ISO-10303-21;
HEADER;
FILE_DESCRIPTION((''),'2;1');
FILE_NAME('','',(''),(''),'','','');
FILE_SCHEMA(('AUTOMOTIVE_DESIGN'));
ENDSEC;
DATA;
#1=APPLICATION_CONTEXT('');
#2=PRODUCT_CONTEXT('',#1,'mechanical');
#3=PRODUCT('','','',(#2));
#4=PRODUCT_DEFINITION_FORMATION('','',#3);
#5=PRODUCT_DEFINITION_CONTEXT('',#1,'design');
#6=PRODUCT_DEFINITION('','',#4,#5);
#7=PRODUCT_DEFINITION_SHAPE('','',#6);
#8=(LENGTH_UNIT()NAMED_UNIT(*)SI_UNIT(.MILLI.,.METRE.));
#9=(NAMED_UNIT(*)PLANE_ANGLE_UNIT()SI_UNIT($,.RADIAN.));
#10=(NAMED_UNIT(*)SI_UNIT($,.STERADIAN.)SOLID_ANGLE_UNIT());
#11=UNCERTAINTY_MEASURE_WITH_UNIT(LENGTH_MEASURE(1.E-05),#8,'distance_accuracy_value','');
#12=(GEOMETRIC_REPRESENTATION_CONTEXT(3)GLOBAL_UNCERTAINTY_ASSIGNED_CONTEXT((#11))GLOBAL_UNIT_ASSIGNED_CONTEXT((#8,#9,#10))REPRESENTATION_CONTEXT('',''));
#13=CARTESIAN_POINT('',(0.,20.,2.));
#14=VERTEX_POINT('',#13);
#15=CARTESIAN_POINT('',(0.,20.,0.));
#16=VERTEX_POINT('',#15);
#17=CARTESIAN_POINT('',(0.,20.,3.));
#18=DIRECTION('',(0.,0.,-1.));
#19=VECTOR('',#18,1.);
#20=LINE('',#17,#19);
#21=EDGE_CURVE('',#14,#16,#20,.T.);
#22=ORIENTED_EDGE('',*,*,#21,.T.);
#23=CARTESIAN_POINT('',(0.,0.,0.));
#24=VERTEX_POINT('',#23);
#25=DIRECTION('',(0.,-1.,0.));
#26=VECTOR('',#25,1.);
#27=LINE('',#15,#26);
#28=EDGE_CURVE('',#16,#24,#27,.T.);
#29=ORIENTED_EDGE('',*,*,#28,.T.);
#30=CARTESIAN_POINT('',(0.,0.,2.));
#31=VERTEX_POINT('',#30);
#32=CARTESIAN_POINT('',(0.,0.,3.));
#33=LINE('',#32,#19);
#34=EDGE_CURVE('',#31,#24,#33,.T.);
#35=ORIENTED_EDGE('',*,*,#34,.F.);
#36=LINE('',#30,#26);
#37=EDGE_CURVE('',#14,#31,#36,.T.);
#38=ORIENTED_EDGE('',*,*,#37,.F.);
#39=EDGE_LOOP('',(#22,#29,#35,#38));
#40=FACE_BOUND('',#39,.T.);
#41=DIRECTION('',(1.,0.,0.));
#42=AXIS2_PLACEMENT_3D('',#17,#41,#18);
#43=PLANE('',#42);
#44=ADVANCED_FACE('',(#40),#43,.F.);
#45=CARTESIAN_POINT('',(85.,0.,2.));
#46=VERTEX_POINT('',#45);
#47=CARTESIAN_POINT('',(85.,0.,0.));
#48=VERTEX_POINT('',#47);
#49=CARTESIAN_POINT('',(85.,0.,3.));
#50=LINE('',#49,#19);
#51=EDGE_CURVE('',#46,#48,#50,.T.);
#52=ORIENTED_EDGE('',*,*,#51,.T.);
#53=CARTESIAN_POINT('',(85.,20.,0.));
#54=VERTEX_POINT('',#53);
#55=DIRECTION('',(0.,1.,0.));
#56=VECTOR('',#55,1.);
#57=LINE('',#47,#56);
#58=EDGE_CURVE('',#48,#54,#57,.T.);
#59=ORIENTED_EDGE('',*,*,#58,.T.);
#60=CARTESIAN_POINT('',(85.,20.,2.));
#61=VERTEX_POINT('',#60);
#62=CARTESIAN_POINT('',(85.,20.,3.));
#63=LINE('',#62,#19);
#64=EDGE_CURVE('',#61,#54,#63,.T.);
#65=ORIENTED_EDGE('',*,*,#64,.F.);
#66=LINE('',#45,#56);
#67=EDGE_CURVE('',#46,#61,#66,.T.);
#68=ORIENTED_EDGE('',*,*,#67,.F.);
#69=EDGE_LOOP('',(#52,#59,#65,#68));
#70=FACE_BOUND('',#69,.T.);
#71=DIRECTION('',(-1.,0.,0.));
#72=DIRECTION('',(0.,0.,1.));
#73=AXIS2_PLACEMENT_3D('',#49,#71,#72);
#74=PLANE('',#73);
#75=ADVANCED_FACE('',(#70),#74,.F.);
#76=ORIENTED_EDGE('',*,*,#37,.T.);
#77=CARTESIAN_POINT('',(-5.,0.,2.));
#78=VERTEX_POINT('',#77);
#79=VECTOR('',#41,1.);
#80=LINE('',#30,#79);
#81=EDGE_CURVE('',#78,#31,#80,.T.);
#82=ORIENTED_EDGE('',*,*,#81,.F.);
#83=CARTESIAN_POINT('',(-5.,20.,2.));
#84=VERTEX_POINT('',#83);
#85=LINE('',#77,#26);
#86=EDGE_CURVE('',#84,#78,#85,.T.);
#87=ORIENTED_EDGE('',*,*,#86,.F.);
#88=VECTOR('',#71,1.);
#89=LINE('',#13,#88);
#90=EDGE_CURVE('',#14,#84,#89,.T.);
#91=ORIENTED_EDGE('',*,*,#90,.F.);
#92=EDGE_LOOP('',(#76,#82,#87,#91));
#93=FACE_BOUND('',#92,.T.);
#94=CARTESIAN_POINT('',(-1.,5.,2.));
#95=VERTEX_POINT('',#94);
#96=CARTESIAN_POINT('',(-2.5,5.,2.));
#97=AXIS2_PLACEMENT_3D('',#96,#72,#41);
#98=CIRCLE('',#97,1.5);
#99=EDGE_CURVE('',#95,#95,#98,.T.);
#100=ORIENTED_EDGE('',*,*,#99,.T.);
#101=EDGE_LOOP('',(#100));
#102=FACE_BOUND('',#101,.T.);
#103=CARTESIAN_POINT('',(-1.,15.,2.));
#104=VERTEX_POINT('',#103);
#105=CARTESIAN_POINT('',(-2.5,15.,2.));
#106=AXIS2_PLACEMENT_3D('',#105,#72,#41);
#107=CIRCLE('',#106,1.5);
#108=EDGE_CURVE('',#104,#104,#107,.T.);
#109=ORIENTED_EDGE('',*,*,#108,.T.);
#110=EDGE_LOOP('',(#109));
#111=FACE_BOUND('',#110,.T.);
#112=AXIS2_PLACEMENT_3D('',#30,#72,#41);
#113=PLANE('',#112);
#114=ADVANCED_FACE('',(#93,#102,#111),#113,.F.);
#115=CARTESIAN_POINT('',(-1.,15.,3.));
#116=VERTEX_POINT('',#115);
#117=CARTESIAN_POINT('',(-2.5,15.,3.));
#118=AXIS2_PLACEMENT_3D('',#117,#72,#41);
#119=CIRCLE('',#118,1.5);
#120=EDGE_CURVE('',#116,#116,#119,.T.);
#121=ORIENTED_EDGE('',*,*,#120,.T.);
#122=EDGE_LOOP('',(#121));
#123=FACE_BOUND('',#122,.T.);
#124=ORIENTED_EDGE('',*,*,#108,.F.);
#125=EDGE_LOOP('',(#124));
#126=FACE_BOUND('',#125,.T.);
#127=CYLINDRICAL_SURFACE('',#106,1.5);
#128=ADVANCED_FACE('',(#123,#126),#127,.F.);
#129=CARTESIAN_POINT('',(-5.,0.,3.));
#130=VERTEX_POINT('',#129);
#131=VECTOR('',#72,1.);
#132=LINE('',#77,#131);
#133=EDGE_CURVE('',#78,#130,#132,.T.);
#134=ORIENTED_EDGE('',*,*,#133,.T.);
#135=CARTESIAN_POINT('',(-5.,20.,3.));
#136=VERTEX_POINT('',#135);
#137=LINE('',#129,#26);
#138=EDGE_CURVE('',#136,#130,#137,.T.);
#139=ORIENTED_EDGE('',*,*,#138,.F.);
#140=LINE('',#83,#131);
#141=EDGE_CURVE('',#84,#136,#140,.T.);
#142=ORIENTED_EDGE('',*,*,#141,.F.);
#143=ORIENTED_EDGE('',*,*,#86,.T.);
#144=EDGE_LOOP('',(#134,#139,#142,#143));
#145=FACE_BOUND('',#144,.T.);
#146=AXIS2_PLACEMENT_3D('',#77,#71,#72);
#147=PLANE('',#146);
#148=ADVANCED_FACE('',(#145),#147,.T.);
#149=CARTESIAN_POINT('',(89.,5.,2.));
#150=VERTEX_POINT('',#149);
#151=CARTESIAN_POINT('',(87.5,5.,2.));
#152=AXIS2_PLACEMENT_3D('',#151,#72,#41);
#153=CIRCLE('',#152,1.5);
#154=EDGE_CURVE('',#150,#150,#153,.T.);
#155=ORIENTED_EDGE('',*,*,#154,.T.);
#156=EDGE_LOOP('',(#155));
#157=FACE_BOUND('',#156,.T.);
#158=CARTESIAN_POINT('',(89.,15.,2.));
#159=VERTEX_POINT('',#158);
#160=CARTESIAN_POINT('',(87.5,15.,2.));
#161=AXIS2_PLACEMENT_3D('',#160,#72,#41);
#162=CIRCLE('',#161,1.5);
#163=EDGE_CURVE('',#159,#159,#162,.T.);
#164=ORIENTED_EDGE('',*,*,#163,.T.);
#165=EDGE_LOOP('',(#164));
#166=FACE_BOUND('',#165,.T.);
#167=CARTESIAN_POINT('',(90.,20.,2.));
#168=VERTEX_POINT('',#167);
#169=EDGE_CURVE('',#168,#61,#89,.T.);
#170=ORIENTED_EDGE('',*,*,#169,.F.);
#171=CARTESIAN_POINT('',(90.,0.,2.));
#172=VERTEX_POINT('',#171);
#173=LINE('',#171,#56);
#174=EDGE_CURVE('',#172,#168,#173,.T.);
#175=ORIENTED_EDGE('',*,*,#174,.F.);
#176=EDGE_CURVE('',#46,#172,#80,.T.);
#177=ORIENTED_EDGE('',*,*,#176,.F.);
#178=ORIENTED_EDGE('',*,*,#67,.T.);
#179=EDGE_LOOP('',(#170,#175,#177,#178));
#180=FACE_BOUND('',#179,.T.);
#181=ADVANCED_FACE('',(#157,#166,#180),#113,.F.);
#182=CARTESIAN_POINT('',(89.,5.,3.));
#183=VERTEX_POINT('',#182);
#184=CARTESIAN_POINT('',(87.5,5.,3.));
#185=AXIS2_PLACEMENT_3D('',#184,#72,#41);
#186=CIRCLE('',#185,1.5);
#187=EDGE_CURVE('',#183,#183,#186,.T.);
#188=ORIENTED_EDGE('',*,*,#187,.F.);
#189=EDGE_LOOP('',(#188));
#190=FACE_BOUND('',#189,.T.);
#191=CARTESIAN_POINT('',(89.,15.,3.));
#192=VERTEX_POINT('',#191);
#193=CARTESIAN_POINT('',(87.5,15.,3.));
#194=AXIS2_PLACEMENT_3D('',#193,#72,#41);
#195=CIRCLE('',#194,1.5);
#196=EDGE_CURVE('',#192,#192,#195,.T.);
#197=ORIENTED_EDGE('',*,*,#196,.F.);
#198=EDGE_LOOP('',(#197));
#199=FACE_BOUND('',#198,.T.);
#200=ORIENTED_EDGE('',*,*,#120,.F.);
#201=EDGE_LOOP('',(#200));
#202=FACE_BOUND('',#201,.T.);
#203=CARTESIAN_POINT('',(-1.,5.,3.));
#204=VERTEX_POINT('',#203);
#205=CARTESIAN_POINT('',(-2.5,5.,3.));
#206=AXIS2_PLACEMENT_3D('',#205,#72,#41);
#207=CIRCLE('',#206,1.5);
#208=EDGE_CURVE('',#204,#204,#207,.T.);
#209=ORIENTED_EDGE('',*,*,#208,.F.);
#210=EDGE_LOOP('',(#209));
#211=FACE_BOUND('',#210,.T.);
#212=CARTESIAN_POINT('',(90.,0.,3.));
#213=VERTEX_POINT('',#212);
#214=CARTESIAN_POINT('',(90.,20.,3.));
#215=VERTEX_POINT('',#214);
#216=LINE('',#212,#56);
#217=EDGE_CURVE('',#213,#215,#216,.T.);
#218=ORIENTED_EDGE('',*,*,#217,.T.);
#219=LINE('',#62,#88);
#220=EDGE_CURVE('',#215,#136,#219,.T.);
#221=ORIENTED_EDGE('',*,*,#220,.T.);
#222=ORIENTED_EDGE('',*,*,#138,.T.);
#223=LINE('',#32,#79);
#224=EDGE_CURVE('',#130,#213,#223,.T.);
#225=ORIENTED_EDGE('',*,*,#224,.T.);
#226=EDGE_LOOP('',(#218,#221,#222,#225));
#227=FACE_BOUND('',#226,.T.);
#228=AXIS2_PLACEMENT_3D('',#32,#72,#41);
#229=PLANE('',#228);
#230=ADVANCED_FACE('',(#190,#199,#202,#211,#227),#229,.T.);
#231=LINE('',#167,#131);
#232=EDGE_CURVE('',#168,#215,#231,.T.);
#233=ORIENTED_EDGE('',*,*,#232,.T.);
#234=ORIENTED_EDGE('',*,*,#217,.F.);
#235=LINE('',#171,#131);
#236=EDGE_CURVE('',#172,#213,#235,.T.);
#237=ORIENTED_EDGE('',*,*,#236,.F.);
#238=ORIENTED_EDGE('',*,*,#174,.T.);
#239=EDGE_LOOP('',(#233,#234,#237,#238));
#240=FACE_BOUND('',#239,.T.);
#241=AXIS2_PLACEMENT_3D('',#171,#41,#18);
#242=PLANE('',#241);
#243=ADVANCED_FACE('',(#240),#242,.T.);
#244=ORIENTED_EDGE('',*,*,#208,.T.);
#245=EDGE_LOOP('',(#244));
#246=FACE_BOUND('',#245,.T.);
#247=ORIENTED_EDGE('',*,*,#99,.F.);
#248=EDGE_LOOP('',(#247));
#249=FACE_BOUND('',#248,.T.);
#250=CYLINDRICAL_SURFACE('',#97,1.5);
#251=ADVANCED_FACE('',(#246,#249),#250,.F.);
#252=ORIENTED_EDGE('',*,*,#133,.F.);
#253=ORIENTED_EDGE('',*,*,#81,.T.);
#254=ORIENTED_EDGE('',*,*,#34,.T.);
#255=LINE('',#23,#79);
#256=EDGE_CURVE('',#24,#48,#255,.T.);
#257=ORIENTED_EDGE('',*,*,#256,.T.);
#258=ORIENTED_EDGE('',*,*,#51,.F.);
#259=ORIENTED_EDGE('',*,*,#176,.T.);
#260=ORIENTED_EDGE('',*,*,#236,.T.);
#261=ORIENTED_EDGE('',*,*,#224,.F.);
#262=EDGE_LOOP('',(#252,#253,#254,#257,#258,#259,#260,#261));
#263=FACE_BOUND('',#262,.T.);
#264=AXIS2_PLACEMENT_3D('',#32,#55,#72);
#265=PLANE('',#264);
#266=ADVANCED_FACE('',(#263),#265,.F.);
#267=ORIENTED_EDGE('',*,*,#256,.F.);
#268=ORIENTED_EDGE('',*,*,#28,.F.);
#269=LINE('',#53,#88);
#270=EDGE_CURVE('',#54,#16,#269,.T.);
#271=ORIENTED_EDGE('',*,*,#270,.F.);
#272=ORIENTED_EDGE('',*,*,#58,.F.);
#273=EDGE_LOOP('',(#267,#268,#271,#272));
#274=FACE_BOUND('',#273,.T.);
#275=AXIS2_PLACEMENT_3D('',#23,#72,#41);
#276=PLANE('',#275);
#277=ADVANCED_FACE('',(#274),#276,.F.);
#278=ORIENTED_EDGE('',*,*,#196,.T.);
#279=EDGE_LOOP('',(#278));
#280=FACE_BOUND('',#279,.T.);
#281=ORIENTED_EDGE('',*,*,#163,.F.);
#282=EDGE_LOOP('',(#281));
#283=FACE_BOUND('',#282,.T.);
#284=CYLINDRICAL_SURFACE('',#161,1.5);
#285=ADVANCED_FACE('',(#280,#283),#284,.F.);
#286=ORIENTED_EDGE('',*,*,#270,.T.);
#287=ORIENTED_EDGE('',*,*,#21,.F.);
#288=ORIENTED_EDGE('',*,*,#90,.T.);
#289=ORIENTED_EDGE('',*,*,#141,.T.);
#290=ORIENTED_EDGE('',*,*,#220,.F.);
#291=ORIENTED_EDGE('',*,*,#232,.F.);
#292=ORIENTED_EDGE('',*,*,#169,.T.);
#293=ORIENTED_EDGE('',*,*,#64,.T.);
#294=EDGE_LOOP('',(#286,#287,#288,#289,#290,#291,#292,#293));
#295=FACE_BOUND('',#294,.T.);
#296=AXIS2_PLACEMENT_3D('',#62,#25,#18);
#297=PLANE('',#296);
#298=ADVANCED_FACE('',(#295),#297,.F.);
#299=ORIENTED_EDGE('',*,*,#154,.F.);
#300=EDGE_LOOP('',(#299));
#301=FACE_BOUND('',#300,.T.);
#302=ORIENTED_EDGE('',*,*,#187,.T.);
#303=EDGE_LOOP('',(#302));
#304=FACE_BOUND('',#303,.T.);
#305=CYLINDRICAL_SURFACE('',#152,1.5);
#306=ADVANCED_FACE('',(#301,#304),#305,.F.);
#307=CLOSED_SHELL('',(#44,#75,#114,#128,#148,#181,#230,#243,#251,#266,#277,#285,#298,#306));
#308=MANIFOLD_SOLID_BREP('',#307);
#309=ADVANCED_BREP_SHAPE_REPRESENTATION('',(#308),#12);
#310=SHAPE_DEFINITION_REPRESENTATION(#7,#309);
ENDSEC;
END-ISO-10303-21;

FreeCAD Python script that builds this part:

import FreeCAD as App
import Part
import Sketcher

V = App.Vector


def add_polygon(sketch, points):
    """Adds a closed chain of lines whose ends are joined by coincident constraints."""
    first, n = sketch.GeometryCount, len(points)
    for a, b in zip(points, points[1:] + points[:1]):
        sketch.addGeometry(Part.LineSegment(App.Vector(*a, 0), App.Vector(*b, 0)), False)
    for i in range(n):
        sketch.addConstraint(Sketcher.Constraint("Coincident", first + i, 2, first + (i + 1) % n, 1))

doc = App.newDocument("Part")
body = doc.addObject("PartDesign::Body", "Body")

# Sketch on XY plane
sketch1 = body.newObject("Sketcher::SketchObject", "Sketch")
sketch1.AttachmentSupport = (doc.getObject("XY_Plane"), [""])
sketch1.MapMode = "FlatFace"
add_polygon(sketch1, [(0, 20), (0, 0), (85, 0), (85, 20)])  # lines 0-3
sketch1.addConstraint([
    Sketcher.Constraint("Vertical", 0),
    Sketcher.Constraint("Horizontal", 1),
    Sketcher.Constraint("Vertical", 2),
    Sketcher.Constraint("Horizontal", 3),
    Sketcher.Constraint("Coincident", 0, 2, -1, 1),
    Sketcher.Constraint("DistanceX", 1, 1, 1, 2, 85.0),
    Sketcher.Constraint("DistanceY", 0, 2, 0, 1, 20.0),
])
pad1 = body.newObject("PartDesign::Pad", "Pad")
pad1.Profile = sketch1
pad1.Length = 3

# Sketch on XY plane
sketch2 = body.newObject("Sketcher::SketchObject", "Sketch001")
sketch2.AttachmentSupport = (doc.getObject("XY_Plane"), [""])
sketch2.MapMode = "FlatFace"
sketch2.AttachmentOffset = App.Placement(V(0, 0, 3), App.Rotation())
add_polygon(sketch2, [(85, 20), (85, 0), (90, 0), (90, 20)])  # lines 0-3
sketch2.addGeometry(Part.Circle(V(87.5, 5, 0), V(0, 0, 1), 1.5), False)  # 4
sketch2.addGeometry(Part.Circle(V(87.5, 15, 0), V(0, 0, 1), 1.5), False)  # 5
add_polygon(sketch2, [(-5, 20), (-5, 0), (0, 0), (0, 20)])  # lines 6-9
sketch2.addGeometry(Part.Circle(V(-2.5, 5, 0), V(0, 0, 1), 1.5), False)  # 10
sketch2.addGeometry(Part.Circle(V(-2.5, 15, 0), V(0, 0, 1), 1.5), False)  # 11
sketch2.addConstraint([
    Sketcher.Constraint("Vertical", 0),
    Sketcher.Constraint("Horizontal", 1),
    Sketcher.Constraint("Vertical", 2),
    Sketcher.Constraint("Horizontal", 3),
    Sketcher.Constraint("Vertical", 6),
    Sketcher.Constraint("Horizontal", 7),
    Sketcher.Constraint("Vertical", 8),
    Sketcher.Constraint("Horizontal", 9),
    Sketcher.Constraint("Coincident", 7, 2, -1, 1),
    Sketcher.Constraint("Equal", 4, 5),
    Sketcher.Constraint("Equal", 5, 10),
    Sketcher.Constraint("Equal", 10, 11),
    Sketcher.Constraint("PointOnObject", 0, 2, -1),
    Sketcher.Constraint("Horizontal", 4, 3, 10, 3),
    Sketcher.Constraint("Horizontal", 5, 3, 11, 3),
    Sketcher.Constraint("Horizontal", 3, 2, 8, 2),
    Sketcher.Constraint("Vertical", 4, 3, 5, 3),
    Sketcher.Constraint("Vertical", 10, 3, 11, 3),
    Sketcher.Constraint("Equal", 3, 7),
    Sketcher.Constraint("Diameter", 4, 3.0),
    Sketcher.Constraint("DistanceX", 1, 1, 1, 2, 5.0),
    Sketcher.Constraint("DistanceY", 0, 2, 0, 1, 20.0),
    Sketcher.Constraint("DistanceY", -1, 1, 4, 3, 5.0),
    Sketcher.Constraint("DistanceY", -1, 1, 5, 3, 15.0),
    Sketcher.Constraint("DistanceX", -1, 1, 0, 2, 85.0),
    Sketcher.Constraint("DistanceX", 10, 3, 4, 3, 90.0),
    Sketcher.Constraint("DistanceX", -1, 1, 4, 3, 87.5),
])
pad2 = body.newObject("PartDesign::Pad", "Pad001")
pad2.Profile = sketch2
pad2.Length = 1
pad2.Reversed = True

doc.recompute()
